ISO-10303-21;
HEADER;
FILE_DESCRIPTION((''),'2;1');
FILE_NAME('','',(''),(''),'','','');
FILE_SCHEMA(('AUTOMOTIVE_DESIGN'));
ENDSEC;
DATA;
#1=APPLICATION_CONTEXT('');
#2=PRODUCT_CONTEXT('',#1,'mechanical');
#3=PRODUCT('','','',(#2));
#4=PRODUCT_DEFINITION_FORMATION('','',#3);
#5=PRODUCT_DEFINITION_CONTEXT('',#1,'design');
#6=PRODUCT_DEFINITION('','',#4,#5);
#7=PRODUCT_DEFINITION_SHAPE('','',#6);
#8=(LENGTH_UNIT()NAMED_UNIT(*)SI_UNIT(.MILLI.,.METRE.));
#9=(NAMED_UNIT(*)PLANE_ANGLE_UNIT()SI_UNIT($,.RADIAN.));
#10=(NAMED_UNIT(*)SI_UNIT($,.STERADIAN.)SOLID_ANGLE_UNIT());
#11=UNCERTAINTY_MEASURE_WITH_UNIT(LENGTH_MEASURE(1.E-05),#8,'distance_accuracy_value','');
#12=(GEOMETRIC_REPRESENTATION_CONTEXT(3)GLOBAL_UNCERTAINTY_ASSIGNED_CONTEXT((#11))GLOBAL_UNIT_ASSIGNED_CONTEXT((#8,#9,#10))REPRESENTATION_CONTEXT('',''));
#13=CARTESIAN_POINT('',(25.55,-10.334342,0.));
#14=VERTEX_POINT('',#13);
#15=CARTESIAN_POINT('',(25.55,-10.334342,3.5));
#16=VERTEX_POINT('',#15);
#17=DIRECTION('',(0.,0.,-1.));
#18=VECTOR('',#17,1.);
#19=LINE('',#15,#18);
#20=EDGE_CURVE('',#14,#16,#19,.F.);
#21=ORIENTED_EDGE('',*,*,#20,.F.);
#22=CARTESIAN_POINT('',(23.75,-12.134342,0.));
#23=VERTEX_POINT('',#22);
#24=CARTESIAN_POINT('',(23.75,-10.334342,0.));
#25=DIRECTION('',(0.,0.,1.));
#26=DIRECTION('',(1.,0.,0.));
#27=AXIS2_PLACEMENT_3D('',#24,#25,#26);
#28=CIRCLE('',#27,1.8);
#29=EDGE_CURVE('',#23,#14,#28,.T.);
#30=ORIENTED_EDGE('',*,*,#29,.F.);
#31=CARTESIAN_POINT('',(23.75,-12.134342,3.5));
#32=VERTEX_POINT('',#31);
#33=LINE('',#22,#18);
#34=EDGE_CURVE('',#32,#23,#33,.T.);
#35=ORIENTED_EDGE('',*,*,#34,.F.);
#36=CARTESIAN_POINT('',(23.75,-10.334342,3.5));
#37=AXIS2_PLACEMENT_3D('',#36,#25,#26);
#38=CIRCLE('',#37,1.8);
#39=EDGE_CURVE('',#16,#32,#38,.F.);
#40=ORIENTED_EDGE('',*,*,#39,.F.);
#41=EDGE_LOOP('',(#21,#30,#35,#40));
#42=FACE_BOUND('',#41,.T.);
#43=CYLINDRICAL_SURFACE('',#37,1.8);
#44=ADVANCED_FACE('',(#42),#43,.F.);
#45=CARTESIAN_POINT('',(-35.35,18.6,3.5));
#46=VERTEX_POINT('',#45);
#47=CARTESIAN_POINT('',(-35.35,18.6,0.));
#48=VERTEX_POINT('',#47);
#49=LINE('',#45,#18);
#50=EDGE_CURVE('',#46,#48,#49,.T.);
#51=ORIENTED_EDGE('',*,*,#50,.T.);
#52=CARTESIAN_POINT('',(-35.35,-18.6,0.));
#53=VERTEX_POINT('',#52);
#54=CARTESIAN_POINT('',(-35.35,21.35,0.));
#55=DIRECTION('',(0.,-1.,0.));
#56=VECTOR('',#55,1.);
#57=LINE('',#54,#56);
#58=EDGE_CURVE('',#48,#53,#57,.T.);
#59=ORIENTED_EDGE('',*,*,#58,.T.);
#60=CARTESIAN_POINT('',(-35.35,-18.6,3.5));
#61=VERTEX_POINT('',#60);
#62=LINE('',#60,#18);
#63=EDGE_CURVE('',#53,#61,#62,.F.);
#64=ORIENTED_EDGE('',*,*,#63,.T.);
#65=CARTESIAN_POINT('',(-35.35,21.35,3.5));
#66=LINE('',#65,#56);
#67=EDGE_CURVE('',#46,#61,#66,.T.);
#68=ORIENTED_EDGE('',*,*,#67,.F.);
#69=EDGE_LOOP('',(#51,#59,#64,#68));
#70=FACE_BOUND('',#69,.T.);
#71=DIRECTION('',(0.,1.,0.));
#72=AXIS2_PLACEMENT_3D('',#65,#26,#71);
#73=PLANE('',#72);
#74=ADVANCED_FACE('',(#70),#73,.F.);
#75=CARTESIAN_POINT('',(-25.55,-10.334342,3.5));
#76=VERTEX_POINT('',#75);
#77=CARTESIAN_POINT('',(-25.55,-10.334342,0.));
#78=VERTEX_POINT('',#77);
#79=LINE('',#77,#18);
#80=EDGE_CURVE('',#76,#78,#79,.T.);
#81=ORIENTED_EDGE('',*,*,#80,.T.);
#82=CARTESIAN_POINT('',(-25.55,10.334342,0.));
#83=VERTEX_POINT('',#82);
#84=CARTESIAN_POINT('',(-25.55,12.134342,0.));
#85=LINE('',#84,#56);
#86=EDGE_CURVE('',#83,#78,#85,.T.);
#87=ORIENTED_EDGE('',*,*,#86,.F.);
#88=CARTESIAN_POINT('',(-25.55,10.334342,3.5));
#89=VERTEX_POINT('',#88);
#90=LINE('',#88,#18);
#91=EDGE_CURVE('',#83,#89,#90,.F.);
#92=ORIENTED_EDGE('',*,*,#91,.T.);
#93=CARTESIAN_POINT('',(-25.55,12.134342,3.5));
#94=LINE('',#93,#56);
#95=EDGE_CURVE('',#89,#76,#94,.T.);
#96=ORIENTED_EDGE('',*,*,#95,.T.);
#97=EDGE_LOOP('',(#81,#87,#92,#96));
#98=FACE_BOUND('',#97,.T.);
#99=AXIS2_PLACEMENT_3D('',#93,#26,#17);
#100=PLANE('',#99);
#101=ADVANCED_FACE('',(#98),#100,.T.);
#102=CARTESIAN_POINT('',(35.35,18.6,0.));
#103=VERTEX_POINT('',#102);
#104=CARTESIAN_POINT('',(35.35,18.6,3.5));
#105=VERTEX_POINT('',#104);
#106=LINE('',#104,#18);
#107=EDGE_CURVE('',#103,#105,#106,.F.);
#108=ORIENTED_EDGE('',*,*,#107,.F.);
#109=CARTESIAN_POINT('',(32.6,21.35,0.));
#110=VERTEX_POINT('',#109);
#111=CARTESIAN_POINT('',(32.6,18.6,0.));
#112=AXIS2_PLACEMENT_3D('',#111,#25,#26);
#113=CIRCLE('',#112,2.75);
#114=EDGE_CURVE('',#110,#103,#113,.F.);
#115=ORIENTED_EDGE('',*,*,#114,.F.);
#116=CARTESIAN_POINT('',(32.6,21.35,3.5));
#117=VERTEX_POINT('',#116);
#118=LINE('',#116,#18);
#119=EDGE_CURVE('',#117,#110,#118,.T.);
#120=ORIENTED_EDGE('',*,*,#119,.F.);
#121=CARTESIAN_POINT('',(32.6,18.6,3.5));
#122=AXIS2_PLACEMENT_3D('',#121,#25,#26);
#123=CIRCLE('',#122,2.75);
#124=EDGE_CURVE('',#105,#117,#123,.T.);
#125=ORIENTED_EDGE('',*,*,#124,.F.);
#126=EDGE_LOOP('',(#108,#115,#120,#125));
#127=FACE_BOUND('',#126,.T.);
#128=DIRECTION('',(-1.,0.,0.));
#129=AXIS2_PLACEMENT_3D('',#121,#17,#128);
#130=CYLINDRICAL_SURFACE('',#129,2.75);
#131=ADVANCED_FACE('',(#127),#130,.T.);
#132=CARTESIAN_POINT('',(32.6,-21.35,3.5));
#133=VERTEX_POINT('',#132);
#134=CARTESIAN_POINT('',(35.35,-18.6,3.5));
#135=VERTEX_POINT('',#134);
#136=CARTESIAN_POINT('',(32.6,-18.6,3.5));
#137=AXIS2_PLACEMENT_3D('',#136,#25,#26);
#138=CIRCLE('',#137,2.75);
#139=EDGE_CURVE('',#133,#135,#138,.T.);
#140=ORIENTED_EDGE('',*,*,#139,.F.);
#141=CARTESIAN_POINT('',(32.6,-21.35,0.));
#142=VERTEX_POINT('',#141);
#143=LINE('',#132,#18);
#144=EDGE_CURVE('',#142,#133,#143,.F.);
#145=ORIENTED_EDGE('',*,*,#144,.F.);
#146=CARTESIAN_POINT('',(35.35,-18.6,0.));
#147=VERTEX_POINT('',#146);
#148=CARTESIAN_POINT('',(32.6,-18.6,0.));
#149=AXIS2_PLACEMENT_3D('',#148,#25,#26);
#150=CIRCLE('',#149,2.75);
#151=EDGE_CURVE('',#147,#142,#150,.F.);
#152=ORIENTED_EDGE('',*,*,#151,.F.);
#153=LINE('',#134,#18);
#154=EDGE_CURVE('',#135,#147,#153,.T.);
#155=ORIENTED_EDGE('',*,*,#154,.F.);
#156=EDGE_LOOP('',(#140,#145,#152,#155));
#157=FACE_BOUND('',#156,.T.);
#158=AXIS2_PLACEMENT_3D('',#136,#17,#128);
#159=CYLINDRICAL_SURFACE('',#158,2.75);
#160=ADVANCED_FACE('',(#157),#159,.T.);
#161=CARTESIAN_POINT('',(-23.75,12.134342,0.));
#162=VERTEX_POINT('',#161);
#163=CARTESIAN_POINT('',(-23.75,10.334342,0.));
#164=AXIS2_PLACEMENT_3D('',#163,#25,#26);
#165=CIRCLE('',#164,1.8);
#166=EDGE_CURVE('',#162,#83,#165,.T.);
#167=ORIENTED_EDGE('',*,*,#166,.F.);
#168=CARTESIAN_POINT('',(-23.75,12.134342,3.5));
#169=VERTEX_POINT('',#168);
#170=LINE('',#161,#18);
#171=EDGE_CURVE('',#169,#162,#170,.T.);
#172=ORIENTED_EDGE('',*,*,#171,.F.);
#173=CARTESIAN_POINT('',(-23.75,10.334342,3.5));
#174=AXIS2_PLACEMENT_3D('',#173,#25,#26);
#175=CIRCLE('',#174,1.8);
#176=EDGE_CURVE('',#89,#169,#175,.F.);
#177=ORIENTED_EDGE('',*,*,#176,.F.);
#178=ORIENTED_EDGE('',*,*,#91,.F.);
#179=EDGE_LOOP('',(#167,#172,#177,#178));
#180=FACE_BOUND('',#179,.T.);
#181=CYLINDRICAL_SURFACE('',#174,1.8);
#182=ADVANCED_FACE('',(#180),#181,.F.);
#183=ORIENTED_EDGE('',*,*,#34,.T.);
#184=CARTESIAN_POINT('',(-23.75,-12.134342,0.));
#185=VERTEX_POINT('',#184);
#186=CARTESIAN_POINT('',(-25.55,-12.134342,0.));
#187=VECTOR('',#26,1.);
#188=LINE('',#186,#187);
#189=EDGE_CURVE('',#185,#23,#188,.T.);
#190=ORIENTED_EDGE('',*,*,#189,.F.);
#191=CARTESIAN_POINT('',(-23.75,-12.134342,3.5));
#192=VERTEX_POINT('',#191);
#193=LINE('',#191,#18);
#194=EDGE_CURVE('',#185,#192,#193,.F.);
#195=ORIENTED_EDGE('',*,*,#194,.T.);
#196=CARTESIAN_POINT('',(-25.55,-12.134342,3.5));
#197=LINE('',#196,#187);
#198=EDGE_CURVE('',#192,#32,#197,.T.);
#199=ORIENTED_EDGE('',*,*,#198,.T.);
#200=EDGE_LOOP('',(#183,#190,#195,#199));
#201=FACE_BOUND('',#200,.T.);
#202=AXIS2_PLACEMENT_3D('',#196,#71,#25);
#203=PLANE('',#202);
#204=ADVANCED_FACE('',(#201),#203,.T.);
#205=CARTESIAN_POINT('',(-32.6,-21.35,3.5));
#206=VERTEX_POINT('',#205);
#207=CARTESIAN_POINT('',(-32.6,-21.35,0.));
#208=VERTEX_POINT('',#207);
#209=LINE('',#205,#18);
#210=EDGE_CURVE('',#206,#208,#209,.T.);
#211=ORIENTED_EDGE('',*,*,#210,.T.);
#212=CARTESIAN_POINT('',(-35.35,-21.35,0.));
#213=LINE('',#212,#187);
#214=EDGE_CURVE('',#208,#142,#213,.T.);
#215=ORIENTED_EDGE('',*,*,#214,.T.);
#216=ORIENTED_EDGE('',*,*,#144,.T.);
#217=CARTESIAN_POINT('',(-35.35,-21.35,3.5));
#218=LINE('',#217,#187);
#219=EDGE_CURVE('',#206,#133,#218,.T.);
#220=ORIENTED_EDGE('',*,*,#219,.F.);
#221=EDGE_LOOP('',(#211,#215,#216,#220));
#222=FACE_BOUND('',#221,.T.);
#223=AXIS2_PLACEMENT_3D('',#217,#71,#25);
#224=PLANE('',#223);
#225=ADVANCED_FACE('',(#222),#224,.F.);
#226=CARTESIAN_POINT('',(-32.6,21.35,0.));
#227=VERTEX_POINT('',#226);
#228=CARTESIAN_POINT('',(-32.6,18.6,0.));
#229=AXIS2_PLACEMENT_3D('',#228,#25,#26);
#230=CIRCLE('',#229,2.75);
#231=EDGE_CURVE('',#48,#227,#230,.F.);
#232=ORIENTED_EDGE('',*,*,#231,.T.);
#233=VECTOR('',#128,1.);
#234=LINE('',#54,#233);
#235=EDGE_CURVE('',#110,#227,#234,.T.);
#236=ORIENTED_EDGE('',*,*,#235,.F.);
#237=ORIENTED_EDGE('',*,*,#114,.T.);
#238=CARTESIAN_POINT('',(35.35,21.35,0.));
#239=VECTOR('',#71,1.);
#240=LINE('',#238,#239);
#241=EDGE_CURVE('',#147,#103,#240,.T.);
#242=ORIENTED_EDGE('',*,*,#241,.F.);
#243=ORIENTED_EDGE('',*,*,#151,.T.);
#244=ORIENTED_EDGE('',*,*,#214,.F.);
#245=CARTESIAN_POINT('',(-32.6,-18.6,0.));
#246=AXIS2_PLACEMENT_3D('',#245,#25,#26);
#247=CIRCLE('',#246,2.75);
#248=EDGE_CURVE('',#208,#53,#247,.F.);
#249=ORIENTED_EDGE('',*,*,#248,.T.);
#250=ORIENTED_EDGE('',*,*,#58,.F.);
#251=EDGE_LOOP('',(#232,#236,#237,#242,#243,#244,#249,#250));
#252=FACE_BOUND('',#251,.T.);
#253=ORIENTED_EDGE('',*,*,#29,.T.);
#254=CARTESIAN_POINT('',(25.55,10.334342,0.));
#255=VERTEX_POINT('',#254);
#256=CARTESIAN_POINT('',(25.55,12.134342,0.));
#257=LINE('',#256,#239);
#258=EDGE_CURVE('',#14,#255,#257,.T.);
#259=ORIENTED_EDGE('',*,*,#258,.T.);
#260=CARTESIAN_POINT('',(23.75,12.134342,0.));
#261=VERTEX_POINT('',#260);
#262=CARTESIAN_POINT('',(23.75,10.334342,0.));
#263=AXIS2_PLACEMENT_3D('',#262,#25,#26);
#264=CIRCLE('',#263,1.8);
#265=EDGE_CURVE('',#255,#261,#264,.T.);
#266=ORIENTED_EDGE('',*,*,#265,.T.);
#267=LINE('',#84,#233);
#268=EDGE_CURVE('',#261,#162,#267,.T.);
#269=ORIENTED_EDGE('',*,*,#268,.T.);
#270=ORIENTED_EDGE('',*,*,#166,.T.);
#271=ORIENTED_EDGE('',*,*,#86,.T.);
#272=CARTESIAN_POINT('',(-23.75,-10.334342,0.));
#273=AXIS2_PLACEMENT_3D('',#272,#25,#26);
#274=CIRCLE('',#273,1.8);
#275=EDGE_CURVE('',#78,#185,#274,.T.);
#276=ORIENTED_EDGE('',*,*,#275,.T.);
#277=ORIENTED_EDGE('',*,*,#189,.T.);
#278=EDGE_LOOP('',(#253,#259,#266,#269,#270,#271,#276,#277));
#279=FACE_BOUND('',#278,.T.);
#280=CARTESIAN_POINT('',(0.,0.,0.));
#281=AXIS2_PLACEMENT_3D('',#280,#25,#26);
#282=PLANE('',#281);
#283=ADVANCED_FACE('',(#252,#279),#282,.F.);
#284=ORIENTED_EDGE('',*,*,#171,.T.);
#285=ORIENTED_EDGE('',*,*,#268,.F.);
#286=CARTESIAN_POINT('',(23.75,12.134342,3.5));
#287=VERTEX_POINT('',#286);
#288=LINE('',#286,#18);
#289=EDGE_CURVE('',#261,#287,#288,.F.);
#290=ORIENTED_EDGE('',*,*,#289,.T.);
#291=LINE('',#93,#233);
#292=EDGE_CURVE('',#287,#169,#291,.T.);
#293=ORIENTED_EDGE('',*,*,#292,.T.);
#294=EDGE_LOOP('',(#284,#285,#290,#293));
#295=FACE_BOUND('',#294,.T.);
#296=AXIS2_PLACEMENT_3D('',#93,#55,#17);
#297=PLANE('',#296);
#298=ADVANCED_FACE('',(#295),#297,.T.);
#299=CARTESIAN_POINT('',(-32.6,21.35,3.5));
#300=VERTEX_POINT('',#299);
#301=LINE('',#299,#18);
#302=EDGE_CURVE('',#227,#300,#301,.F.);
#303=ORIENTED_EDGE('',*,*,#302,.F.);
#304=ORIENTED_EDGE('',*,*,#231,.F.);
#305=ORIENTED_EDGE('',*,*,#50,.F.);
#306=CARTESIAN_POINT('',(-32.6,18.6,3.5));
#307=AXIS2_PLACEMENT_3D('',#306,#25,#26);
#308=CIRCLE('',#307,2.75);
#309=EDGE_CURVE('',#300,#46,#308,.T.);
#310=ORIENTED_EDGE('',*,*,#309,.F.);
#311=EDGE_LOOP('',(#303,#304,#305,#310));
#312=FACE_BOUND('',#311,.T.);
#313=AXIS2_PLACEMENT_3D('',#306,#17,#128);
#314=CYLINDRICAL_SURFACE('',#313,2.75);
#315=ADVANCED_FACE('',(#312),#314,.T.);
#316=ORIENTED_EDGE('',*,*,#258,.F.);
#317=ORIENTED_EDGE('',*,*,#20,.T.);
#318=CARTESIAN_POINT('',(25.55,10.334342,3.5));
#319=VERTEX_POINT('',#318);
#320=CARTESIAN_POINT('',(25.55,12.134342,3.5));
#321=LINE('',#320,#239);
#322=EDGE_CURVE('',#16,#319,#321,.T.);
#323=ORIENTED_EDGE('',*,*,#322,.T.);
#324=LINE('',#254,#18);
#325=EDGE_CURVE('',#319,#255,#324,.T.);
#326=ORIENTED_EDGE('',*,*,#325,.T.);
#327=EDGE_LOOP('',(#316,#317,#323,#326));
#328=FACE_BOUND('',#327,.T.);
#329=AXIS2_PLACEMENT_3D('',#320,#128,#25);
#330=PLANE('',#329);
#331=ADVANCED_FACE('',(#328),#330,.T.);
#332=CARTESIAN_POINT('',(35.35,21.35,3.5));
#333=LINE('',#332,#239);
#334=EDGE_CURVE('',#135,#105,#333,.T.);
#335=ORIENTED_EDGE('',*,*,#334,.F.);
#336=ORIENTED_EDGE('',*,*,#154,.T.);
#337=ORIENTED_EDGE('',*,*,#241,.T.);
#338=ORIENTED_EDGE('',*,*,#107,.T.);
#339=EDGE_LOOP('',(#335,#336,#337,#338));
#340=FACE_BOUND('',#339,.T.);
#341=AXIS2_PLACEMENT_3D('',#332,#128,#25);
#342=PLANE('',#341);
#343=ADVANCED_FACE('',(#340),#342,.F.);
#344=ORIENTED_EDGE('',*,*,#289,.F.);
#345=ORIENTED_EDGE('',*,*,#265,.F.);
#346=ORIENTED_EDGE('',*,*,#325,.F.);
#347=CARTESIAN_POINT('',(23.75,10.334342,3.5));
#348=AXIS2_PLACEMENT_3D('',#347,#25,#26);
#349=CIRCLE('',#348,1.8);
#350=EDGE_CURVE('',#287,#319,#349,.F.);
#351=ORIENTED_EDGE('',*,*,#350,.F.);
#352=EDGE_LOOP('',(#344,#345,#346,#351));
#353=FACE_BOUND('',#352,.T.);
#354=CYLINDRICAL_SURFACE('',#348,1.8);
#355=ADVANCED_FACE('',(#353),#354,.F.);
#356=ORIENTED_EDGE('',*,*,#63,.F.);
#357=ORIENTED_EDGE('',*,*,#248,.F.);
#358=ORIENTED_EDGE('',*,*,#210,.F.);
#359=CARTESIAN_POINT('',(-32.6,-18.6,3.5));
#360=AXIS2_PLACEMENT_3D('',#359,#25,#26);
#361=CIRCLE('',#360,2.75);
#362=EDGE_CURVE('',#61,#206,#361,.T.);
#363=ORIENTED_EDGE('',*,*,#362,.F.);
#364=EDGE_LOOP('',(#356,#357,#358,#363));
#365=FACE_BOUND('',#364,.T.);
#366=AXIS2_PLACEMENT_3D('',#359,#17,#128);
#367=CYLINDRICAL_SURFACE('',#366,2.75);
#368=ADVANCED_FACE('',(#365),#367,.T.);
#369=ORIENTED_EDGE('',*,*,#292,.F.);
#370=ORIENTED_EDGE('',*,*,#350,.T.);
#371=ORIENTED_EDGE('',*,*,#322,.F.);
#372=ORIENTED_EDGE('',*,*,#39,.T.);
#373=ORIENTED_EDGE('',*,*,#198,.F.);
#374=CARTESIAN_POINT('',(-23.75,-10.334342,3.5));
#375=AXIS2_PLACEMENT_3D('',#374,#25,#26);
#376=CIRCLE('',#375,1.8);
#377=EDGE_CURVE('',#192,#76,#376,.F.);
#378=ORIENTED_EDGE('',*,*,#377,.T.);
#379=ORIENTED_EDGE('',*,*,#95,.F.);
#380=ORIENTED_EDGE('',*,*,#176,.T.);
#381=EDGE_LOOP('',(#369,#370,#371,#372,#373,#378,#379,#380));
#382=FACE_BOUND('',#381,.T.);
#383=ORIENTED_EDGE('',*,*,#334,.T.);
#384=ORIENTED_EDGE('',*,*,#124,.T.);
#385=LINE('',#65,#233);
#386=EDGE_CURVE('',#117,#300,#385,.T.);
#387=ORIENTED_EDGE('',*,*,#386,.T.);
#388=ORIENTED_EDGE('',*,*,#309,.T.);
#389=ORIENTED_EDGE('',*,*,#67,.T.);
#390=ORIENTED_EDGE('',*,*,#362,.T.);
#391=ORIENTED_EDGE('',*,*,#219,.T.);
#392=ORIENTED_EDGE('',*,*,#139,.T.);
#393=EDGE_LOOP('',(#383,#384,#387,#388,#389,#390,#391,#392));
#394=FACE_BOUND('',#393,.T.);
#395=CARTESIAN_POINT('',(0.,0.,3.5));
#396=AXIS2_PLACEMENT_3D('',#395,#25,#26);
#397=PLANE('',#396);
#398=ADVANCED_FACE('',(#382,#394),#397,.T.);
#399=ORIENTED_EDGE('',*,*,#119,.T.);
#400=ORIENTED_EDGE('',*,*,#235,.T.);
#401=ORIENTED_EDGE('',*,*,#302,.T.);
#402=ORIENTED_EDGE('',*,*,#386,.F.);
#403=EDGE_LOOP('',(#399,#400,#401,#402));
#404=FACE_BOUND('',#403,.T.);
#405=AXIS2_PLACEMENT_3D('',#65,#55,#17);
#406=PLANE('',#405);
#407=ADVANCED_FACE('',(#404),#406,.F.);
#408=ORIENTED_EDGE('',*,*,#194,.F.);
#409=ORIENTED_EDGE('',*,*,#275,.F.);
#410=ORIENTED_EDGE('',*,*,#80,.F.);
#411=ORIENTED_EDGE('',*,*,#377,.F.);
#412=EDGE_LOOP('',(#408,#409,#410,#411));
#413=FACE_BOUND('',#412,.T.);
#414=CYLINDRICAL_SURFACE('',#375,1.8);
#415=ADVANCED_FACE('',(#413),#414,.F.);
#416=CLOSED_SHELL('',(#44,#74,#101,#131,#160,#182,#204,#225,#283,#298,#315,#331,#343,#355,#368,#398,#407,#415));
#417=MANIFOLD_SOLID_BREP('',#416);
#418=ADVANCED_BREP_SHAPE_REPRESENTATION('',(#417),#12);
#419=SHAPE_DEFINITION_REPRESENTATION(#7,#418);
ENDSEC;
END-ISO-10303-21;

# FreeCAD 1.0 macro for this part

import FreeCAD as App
import Part
import Sketcher
from FreeCAD import Vector
Q = App.Units.Quantity


def edges_at(feature, points):
    """Names of the edges that pass closest to the given points."""
    edges = feature.Shape.Edges
    near = lambda p: min(range(len(edges)), key=lambda i: edges[i].distToShape(Part.Vertex(*p))[0])
    return sorted({f"Edge{near(p) + 1}" for p in points})

doc = App.newDocument("Part")
params = doc.addObject("Spreadsheet::Sheet", "Params")
for row, (alias, value) in enumerate([
    ("sketch1_width", "70.7 mm"),
    ("sketch1_width2", "51.1 mm"),
    ("sketch1_height", "42.7 mm"),
    ("pad1_length", "3.5 mm"),
    ("fillet_radius", "2.75 mm"),
    ("fillet2_radius", "1.8 mm"),
], start=1):
    params.set(f"A{row}", alias)
    params.set(f"B{row}", "=" + value)
    params.setAlias(f"B{row}", alias)

body = doc.addObject("PartDesign::Body", "Body")

# Sketch on XY plane
sketch1 = body.newObject("Sketcher::SketchObject", "Sketch")
sketch1.AttachmentSupport = (doc.getObject("XY_Plane"), [""])
sketch1.MapMode = "FlatFace"
sketch1.addGeometry(Part.LineSegment(Vector(-35.35, 21.35, 0), Vector(-35.35, -21.35, 0)), False)
sketch1.addGeometry(Part.LineSegment(Vector(-35.35, -21.35, 0), Vector(35.35, -21.35, 0)), False)
sketch1.addGeometry(Part.LineSegment(Vector(35.35, -21.35, 0), Vector(35.35, 21.35, 0)), False)
sketch1.addGeometry(Part.LineSegment(Vector(35.35, 21.35, 0), Vector(-35.35, 21.35, 0)), False)
sketch1.addGeometry(Part.LineSegment(Vector(25.55, -12.134342, 0), Vector(-25.55, -12.134342, 0)), False)
sketch1.addGeometry(Part.LineSegment(Vector(-25.55, -12.134342, 0), Vector(-25.55, 12.134342, 0)), False)
sketch1.addGeometry(Part.LineSegment(Vector(-25.55, 12.134342, 0), Vector(25.55, 12.134342, 0)), False)
sketch1.addGeometry(Part.LineSegment(Vector(25.55, 12.134342, 0), Vector(25.55, -12.134342, 0)), False)
sketch1.addConstraint(Sketcher.Constraint("Coincident", 0, 2, 1, 1))
sketch1.addConstraint(Sketcher.Constraint("Coincident", 1, 2, 2, 1))
sketch1.addConstraint(Sketcher.Constraint("Coincident", 2, 2, 3, 1))
sketch1.addConstraint(Sketcher.Constraint("Coincident", 3, 2, 0, 1))
sketch1.addConstraint(Sketcher.Constraint("Coincident", 4, 2, 5, 1))
sketch1.addConstraint(Sketcher.Constraint("Coincident", 5, 2, 6, 1))
sketch1.addConstraint(Sketcher.Constraint("Coincident", 6, 2, 7, 1))
sketch1.addConstraint(Sketcher.Constraint("Coincident", 7, 2, 4, 1))
sketch1.addConstraint(Sketcher.Constraint("Vertical", 0))
sketch1.addConstraint(Sketcher.Constraint("Horizontal", 1))
sketch1.addConstraint(Sketcher.Constraint("Vertical", 2))
sketch1.addConstraint(Sketcher.Constraint("Horizontal", 3))
sketch1.addConstraint(Sketcher.Constraint("Horizontal", 4))
sketch1.addConstraint(Sketcher.Constraint("Vertical", 5))
sketch1.addConstraint(Sketcher.Constraint("Horizontal", 6))
sketch1.addConstraint(Sketcher.Constraint("Vertical", 7))
sketch1.addConstraint(Sketcher.Constraint("Symmetric", 0, 2, 2, 2, -1, 1))
sketch1.addConstraint(Sketcher.Constraint("Symmetric", 4, 2, 6, 2, -1, 1))
sketch1.addConstraint(Sketcher.Constraint("DistanceX", 1, 1, 1, 2, Q("70.7 mm")))
sketch1.addConstraint(Sketcher.Constraint("DistanceX", 4, 2, 4, 1, Q("51.1 mm")))
sketch1.addConstraint(Sketcher.Constraint("DistanceY", 0, 2, 0, 1, Q("42.7 mm")))
sketch1.addConstraint(Sketcher.Constraint("DistanceY", 5, 1, 5, 2, Q("24.268684 mm")))
sketch1.setExpression("Constraints[18]", "Params.sketch1_width")
sketch1.setExpression("Constraints[19]", "Params.sketch1_width2")
sketch1.setExpression("Constraints[20]", "Params.sketch1_height")
pad1 = body.newObject("PartDesign::Pad", "Pad")
pad1.Profile = sketch1
pad1.setExpression("Length", "Params.pad1_length")
doc.recompute()

fillet = body.newObject("PartDesign::Fillet", "Fillet")
fillet.Base = (pad1, edges_at(pad1, [
    (35.35, -21.35, 1.75),
    (-35.35, -21.35, 1.75),
    (-35.35, 21.35, 1.75),
    (35.35, 21.35, 1.75),
]))
fillet.setExpression("Radius", "Params.fillet_radius")
doc.recompute()

fillet2 = body.newObject("PartDesign::Fillet", "Fillet001")
fillet2.Base = (fillet, edges_at(fillet, [
    (25.55, -12.134, 1.75),
    (25.55, 12.134, 1.75),
    (-25.55, 12.134, 1.75),
    (-25.55, -12.134, 1.75),
]))
fillet2.setExpression("Radius", "Params.fillet2_radius")

doc.recompute()
